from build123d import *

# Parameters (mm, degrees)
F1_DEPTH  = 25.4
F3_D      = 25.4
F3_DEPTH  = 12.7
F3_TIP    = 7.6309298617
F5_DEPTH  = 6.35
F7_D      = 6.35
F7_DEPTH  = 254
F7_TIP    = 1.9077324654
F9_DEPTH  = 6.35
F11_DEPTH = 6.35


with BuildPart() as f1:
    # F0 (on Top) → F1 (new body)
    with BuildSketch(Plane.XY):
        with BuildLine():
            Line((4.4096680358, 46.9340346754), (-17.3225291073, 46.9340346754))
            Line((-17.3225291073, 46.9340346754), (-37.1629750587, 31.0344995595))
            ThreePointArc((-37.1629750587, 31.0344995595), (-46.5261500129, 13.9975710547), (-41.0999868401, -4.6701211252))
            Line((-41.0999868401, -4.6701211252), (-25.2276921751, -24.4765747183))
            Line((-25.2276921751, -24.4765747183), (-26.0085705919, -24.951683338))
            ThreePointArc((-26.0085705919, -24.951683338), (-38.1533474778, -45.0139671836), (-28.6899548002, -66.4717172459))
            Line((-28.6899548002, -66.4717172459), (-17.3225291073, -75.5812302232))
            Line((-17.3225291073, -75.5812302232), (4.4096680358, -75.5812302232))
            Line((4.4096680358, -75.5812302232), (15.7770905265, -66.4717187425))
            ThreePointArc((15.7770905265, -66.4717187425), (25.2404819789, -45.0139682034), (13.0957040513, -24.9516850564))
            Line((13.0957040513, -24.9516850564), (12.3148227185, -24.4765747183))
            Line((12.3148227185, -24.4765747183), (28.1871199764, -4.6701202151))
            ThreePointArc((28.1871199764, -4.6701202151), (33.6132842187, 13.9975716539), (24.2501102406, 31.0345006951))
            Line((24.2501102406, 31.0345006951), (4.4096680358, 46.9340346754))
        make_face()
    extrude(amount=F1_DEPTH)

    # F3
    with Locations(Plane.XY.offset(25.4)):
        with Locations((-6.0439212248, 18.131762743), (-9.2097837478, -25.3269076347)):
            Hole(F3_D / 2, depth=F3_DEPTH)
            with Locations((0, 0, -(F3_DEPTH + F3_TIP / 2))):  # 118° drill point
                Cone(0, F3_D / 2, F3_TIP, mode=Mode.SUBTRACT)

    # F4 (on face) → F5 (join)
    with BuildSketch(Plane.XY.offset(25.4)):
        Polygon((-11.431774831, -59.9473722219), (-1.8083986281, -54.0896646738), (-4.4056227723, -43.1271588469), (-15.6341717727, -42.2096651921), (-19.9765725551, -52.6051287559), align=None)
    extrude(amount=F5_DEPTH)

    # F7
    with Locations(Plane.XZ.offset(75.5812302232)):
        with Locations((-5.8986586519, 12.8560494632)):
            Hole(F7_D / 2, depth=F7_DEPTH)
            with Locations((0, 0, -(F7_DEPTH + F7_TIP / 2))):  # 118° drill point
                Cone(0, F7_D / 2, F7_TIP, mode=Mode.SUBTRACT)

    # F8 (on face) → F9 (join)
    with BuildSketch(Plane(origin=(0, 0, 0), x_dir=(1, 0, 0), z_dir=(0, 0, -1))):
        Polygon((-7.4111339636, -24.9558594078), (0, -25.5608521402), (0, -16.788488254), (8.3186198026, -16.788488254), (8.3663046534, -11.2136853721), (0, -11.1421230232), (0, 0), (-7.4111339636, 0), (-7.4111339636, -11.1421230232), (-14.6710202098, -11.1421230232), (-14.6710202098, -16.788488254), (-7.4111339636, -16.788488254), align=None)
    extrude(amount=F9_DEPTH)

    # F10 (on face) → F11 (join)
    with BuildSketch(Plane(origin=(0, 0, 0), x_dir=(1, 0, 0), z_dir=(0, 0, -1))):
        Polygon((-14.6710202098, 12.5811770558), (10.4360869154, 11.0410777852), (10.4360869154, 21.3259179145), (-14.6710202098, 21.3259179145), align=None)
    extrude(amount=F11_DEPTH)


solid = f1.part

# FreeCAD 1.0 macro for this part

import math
import FreeCAD as App
import Part
import Sketcher
from FreeCAD import Vector
Q = App.Units.Quantity


def add_polygon(sketch, points):
    """Adds a closed chain of lines whose ends are joined by coincident constraints."""
    first, n = sketch.GeometryCount, len(points)
    for a, b in zip(points, points[1:] + points[:1]):
        sketch.addGeometry(Part.LineSegment(App.Vector(*a, 0), App.Vector(*b, 0)), False)
    for i in range(n):
        sketch.addConstraint(Sketcher.Constraint("Coincident", first + i, 2, first + (i + 1) % n, 1))

doc = App.newDocument("Part")
body = doc.addObject("PartDesign::Body", "Body")

# Sketch on XY plane
sketch1 = body.newObject("Sketcher::SketchObject", "Sketch")
sketch1.AttachmentSupport = (doc.getObject("XY_Plane"), [""])
sketch1.MapMode = "FlatFace"
sketch1.addGeometry(Part.LineSegment(Vector(4.409668, 46.934035, 0), Vector(-17.322529, 46.934035, 0)), False)
sketch1.addGeometry(Part.LineSegment(Vector(-17.322529, 46.934035, 0), Vector(-37.162975, 31.0345, 0)), False)
sketch1.addGeometry(Part.ArcOfCircle(Part.Circle(Vector(-21.279171, 11.213683, 0), Vector(0, 0, 1), 25.4), math.radians(128.707634), math.radians(218.707634)), False)
sketch1.addGeometry(Part.LineSegment(Vector(-41.099987, -4.670121, 0), Vector(-25.227692, -24.476575, 0)), False)
sketch1.addGeometry(Part.LineSegment(Vector(-25.227692, -24.476575, 0), Vector(-26.008571, -24.951683, 0)), False)
sketch1.addGeometry(Part.ArcOfCircle(Part.Circle(Vector(-12.806149, -46.650902, 0), Vector(0, 0, 1), 25.4), math.radians(121.31752), math.radians(231.292364)), False)
sketch1.addGeometry(Part.LineSegment(Vector(-28.689955, -66.471717, 0), Vector(-17.322529, -75.58123, 0)), False)
sketch1.addGeometry(Part.LineSegment(Vector(-17.322529, -75.58123, 0), Vector(4.409668, -75.58123, 0)), False)
sketch1.addGeometry(Part.LineSegment(Vector(4.409668, -75.58123, 0), Vector(15.777091, -66.471719, 0)), False)
sketch1.addGeometry(Part.ArcOfCircle(Part.Circle(Vector(-0.106716, -46.650904, 0), Vector(0, 0, 1), 25.4), math.radians(-51.29236), math.radians(58.682483)), False)
sketch1.addGeometry(Part.LineSegment(Vector(13.095704, -24.951685, 0), Vector(12.314823, -24.476575, 0)), False)
sketch1.addGeometry(Part.LineSegment(Vector(12.314823, -24.476575, 0), Vector(28.18712, -4.67012, 0)), False)
sketch1.addGeometry(Part.ArcOfCircle(Part.Circle(Vector(8.366305, 11.213685, 0), Vector(0, 0, 1), 25.4), math.radians(-38.707637), math.radians(51.292363)), False)
sketch1.addGeometry(Part.LineSegment(Vector(24.25011, 31.034501, 0), Vector(4.409668, 46.934035, 0)), False)
sketch1.addConstraint(Sketcher.Constraint("Coincident", 0, 2, 1, 1))
sketch1.addConstraint(Sketcher.Constraint("Tangent", 1, 2, 2, 1))
sketch1.addConstraint(Sketcher.Constraint("Tangent", 2, 2, 3, 1))
sketch1.addConstraint(Sketcher.Constraint("Coincident", 3, 2, 4, 1))
sketch1.addConstraint(Sketcher.Constraint("Tangent", 4, 2, 5, 1))
sketch1.addConstraint(Sketcher.Constraint("Tangent", 5, 2, 6, 1))
sketch1.addConstraint(Sketcher.Constraint("Coincident", 6, 2, 7, 1))
sketch1.addConstraint(Sketcher.Constraint("Coincident", 7, 2, 8, 1))
sketch1.addConstraint(Sketcher.Constraint("Tangent", 8, 2, 9, 1))
sketch1.addConstraint(Sketcher.Constraint("Tangent", 9, 2, 10, 1))
sketch1.addConstraint(Sketcher.Constraint("Coincident", 10, 2, 11, 1))
sketch1.addConstraint(Sketcher.Constraint("Tangent", 11, 2, 12, 1))
sketch1.addConstraint(Sketcher.Constraint("Tangent", 12, 2, 13, 1))
sketch1.addConstraint(Sketcher.Constraint("Coincident", 13, 2, 0, 1))
sketch1.addConstraint(Sketcher.Constraint("Horizontal", 0))
sketch1.addConstraint(Sketcher.Constraint("Horizontal", 7))
sketch1.addConstraint(Sketcher.Constraint("Equal", 2, 5))
sketch1.addConstraint(Sketcher.Constraint("Equal", 5, 9))
sketch1.addConstraint(Sketcher.Constraint("Equal", 9, 12))
sketch1.addConstraint(Sketcher.Constraint("Perpendicular", 1, 3))
sketch1.addConstraint(Sketcher.Constraint("Perpendicular", 3, 8))
sketch1.addConstraint(Sketcher.Constraint("Perpendicular", 6, 11))
sketch1.addConstraint(Sketcher.Constraint("Perpendicular", 11, 13))
sketch1.addConstraint(Sketcher.Constraint("Horizontal", 5, 2, 8, 2))
sketch1.addConstraint(Sketcher.Constraint("Horizontal", 4, 2, 9, 2))
sketch1.addConstraint(Sketcher.Constraint("Horizontal", 3, 2, 10, 2))
sketch1.addConstraint(Sketcher.Constraint("Horizontal", 2, 2, 11, 2))
sketch1.addConstraint(Sketcher.Constraint("Vertical", 0, 2, 6, 2))
sketch1.addConstraint(Sketcher.Constraint("Vertical", 7, 2, 13, 2))
sketch1.addConstraint(Sketcher.Constraint("Radius", 2, Q("1 in")))
sketch1.addConstraint(Sketcher.Constraint("DistanceY", 5, 3, 4, 2, Q("0.8542999 in")))
sketch1.addConstraint(Sketcher.Constraint("DistanceY", 5, 3, -1, 1, Q("46.650902 mm")))
sketch1.addConstraint(Sketcher.Constraint("DistanceY", -1, 1, 1, 2, Q("31.0345 mm")))
sketch1.addConstraint(Sketcher.Constraint("DistanceX", 4, 2, 2, 3, Q("4.7294 mm")))
sketch1.addConstraint(Sketcher.Constraint("Distance", 6, Q("14.567141 mm")))
sketch1.addConstraint(Sketcher.Constraint("Distance", 10, Q("0.91406 mm")))
sketch1.addConstraint(Sketcher.Constraint("DistanceX", 0, 2, 0, 1, Q("21.732197 mm")))
sketch1.addConstraint(Sketcher.Constraint("DistanceX", 2, 3, -1, 1, Q("21.279171 mm")))
pad1 = body.newObject("PartDesign::Pad", "Pad")
pad1.Profile = sketch1
pad1.Length = Q("1 in")

# Sketch on XY plane
sketch2 = body.newObject("Sketcher::SketchObject", "Sketch001")
sketch2.AttachmentSupport = (doc.getObject("XY_Plane"), [""])
sketch2.MapMode = "FlatFace"
sketch2.AttachmentOffset = App.Placement(Vector(0, 0, 1 * 25.4), App.Rotation())
sketch2.addGeometry(Part.Circle(Vector(-6.043921, 18.131763, 0), Vector(0, 0, 1), 12.7), False)
sketch2.addGeometry(Part.Circle(Vector(-9.209784, -25.326908, 0), Vector(0, 0, 1), 12.7), False)
sketch2.addConstraint(Sketcher.Constraint("Equal", 0, 1))
sketch2.addConstraint(Sketcher.Constraint("Diameter", 0, Q("1 in")))
sketch2.addConstraint(Sketcher.Constraint("DistanceX", 0, 3, -1, 1, Q("6.043921 mm")))
sketch2.addConstraint(Sketcher.Constraint("DistanceY", 1, 3, 0, 3, Q("43.45867 mm")))
sketch2.addConstraint(Sketcher.Constraint("DistanceY", -1, 1, 0, 3, Q("18.131763 mm")))
sketch2.addConstraint(Sketcher.Constraint("DistanceX", 1, 3, -1, 1, Q("9.209784 mm")))
doc.recompute()
hole = body.newObject("PartDesign::Hole", "Hole")
hole.Profile = sketch2
hole.ThreadType = "None"
hole.Diameter = Q("1 in")
hole.DepthType = "Dimension"
hole.Depth = Q("0.5 in")
hole.DrillPoint = "Angled"
hole.DrillPointAngle = 118

# Sketch on XY plane
sketch3 = body.newObject("Sketcher::SketchObject", "Sketch002")
sketch3.AttachmentSupport = (doc.getObject("XY_Plane"), [""])
sketch3.MapMode = "FlatFace"
sketch3.AttachmentOffset = App.Placement(Vector(0, 0, 1 * 25.4), App.Rotation())
add_polygon(sketch3, [(-11.431775, -59.947372), (-1.808399, -54.089665), (-4.405623, -43.127159), (-15.634172, -42.209665), (-19.976573, -52.605129)])  # lines 0-4
sketch3.addConstraint(Sketcher.Constraint("Equal", 0, 1))
sketch3.addConstraint(Sketcher.Constraint("Equal", 1, 2))
sketch3.addConstraint(Sketcher.Constraint("Equal", 2, 3))
sketch3.addConstraint(Sketcher.Constraint("Equal", 3, 4))
sketch3.addConstraint(Sketcher.Constraint("DistanceX", 0, 2, -1, 1, Q("1.808399 mm")))
sketch3.addConstraint(Sketcher.Constraint("DistanceY", 0, 2, 2, 2, Q("11.879999 mm")))
sketch3.addConstraint(Sketcher.Constraint("DistanceX", 3, 2, 2, 2, Q("4.342401 mm")))
sketch3.addConstraint(Sketcher.Constraint("Distance", 0, Q("11.265971 mm")))
sketch3.addConstraint(Sketcher.Constraint("DistanceY", 1, 2, -1, 1, Q("43.127159 mm")))
sketch3.addConstraint(Sketcher.Constraint("DistanceX", 2, 2, -1, 1, Q("15.634172 mm")))
pad2 = body.newObject("PartDesign::Pad", "Pad001")
pad2.Profile = sketch3
pad2.Length = Q("0.25 in")

# Sketch on XZ plane
sketch4 = body.newObject("Sketcher::SketchObject", "Sketch003")
sketch4.AttachmentSupport = (doc.getObject("XZ_Plane"), [""])
sketch4.MapMode = "FlatFace"
sketch4.AttachmentOffset = App.Placement(Vector(0, 0, 75.58123), App.Rotation())
sketch4.addGeometry(Part.Circle(Vector(-5.898659, 12.856049, 0), Vector(0, 0, 1), 3.175), False)
sketch4.addConstraint(Sketcher.Constraint("Diameter", 0, Q("0.25 in")))
sketch4.addConstraint(Sketcher.Constraint("DistanceX", 0, 3, -1, 1, Q("5.898659 mm")))
sketch4.addConstraint(Sketcher.Constraint("DistanceY", -1, 1, 0, 3, Q("12.856049 mm")))
doc.recompute()
hole2 = body.newObject("PartDesign::Hole", "Hole001")
hole2.Profile = sketch4
hole2.ThreadType = "None"
hole2.Diameter = Q("0.25 in")
hole2.DepthType = "Dimension"
hole2.Depth = Q("10 in")
hole2.DrillPoint = "Angled"
hole2.DrillPointAngle = 118

# Sketch on XY plane
sketch5 = body.newObject("Sketcher::SketchObject", "Sketch004")
sketch5.AttachmentSupport = (doc.getObject("XY_Plane"), [""])
sketch5.MapMode = "FlatFace"
add_polygon(sketch5, [(-7.411134, 24.955859), (0, 25.560852), (0, 16.788488), (8.31862, 16.788488), (8.366305, 11.213685), (0, 11.142123), (0, 0), (-7.411134, 0), (-7.411134, 11.142123), (-14.67102, 11.142123), (-14.67102, 16.788488), (-7.411134, 16.788488)])  # lines 0-11
sketch5.addConstraint(Sketcher.Constraint("Vertical", 1))
sketch5.addConstraint(Sketcher.Constraint("Horizontal", 2))
sketch5.addConstraint(Sketcher.Constraint("Vertical", 5))
sketch5.addConstraint(Sketcher.Constraint("Horizontal", 6))
sketch5.addConstraint(Sketcher.Constraint("Vertical", 7))
sketch5.addConstraint(Sketcher.Constraint("Horizontal", 8))
sketch5.addConstraint(Sketcher.Constraint("Vertical", 9))
sketch5.addConstraint(Sketcher.Constraint("Horizontal", 10))
sketch5.addConstraint(Sketcher.Constraint("Vertical", 11))
sketch5.addConstraint(Sketcher.Constraint("Coincident", 5, 2, -1, 1))
sketch5.addConstraint(Sketcher.Constraint("PointOnObject", 0, 2, -2))
sketch5.addConstraint(Sketcher.Constraint("Perpendicular", 3, 4))
sketch5.addConstraint(Sketcher.Constraint("Horizontal", 4, 2, 7, 2))
sketch5.addConstraint(Sketcher.Constraint("Horizontal", 2, 2, 9, 2))
sketch5.addConstraint(Sketcher.Constraint("Vertical", 7, 2, 10, 2))
sketch5.addConstraint(Sketcher.Constraint("DistanceX", 2, 1, 2, 2, Q("8.31862 mm")))
sketch5.addConstraint(Sketcher.Constraint("DistanceY", 11, 1, 11, 2, Q("8.167371 mm")))
sketch5.addConstraint(Sketcher.Constraint("Distance", 4, Q("8.366611 mm")))
sketch5.addConstraint(Sketcher.Constraint("DistanceX", 6, 2, 6, 1, Q("7.411134 mm")))
sketch5.addConstraint(Sketcher.Constraint("DistanceX", 8, 2, 8, 1, Q("7.259886 mm")))
sketch5.addConstraint(Sketcher.Constraint("DistanceY", 1, 2, 1, 1, Q("8.772364 mm")))
sketch5.addConstraint(Sketcher.Constraint("DistanceY", 5, 2, 5, 1, Q("11.142123 mm")))
sketch5.addConstraint(Sketcher.Constraint("DistanceY", 9, 1, 9, 2, Q("5.646365 mm")))
pad3 = body.newObject("PartDesign::Pad", "Pad002")
pad3.Profile = sketch5
pad3.Length = Q("0.25 in")
pad3.Reversed = True

# Sketch on XY plane
sketch6 = body.newObject("Sketcher::SketchObject", "Sketch005")
sketch6.AttachmentSupport = (doc.getObject("XY_Plane"), [""])
sketch6.MapMode = "FlatFace"
add_polygon(sketch6, [(-14.67102, -12.581177), (10.436087, -11.041078), (10.436087, -21.325918), (-14.67102, -21.325918)])  # lines 0-3
sketch6.addConstraint(Sketcher.Constraint("Vertical", 1))
sketch6.addConstraint(Sketcher.Constraint("Horizontal", 2))
sketch6.addConstraint(Sketcher.Constraint("Vertical", 3))
sketch6.addConstraint(Sketcher.Constraint("Distance", 0, Q("25.154299 mm")))
sketch6.addConstraint(Sketcher.Constraint("DistanceY", 1, 2, 1, 1, Q("10.28484 mm")))
sketch6.addConstraint(Sketcher.Constraint("DistanceY", 3, 1, 3, 2, Q("8.744741 mm")))
sketch6.addConstraint(Sketcher.Constraint("DistanceX", 2, 2, -1, 1, Q("14.67102 mm")))
sketch6.addConstraint(Sketcher.Constraint("DistanceY", 0, 2, -1, 1, Q("11.041078 mm")))
pad4 = body.newObject("PartDesign::Pad", "Pad003")
pad4.Profile = sketch6
pad4.Length = Q("0.25 in")
pad4.Reversed = True

doc.recompute()
